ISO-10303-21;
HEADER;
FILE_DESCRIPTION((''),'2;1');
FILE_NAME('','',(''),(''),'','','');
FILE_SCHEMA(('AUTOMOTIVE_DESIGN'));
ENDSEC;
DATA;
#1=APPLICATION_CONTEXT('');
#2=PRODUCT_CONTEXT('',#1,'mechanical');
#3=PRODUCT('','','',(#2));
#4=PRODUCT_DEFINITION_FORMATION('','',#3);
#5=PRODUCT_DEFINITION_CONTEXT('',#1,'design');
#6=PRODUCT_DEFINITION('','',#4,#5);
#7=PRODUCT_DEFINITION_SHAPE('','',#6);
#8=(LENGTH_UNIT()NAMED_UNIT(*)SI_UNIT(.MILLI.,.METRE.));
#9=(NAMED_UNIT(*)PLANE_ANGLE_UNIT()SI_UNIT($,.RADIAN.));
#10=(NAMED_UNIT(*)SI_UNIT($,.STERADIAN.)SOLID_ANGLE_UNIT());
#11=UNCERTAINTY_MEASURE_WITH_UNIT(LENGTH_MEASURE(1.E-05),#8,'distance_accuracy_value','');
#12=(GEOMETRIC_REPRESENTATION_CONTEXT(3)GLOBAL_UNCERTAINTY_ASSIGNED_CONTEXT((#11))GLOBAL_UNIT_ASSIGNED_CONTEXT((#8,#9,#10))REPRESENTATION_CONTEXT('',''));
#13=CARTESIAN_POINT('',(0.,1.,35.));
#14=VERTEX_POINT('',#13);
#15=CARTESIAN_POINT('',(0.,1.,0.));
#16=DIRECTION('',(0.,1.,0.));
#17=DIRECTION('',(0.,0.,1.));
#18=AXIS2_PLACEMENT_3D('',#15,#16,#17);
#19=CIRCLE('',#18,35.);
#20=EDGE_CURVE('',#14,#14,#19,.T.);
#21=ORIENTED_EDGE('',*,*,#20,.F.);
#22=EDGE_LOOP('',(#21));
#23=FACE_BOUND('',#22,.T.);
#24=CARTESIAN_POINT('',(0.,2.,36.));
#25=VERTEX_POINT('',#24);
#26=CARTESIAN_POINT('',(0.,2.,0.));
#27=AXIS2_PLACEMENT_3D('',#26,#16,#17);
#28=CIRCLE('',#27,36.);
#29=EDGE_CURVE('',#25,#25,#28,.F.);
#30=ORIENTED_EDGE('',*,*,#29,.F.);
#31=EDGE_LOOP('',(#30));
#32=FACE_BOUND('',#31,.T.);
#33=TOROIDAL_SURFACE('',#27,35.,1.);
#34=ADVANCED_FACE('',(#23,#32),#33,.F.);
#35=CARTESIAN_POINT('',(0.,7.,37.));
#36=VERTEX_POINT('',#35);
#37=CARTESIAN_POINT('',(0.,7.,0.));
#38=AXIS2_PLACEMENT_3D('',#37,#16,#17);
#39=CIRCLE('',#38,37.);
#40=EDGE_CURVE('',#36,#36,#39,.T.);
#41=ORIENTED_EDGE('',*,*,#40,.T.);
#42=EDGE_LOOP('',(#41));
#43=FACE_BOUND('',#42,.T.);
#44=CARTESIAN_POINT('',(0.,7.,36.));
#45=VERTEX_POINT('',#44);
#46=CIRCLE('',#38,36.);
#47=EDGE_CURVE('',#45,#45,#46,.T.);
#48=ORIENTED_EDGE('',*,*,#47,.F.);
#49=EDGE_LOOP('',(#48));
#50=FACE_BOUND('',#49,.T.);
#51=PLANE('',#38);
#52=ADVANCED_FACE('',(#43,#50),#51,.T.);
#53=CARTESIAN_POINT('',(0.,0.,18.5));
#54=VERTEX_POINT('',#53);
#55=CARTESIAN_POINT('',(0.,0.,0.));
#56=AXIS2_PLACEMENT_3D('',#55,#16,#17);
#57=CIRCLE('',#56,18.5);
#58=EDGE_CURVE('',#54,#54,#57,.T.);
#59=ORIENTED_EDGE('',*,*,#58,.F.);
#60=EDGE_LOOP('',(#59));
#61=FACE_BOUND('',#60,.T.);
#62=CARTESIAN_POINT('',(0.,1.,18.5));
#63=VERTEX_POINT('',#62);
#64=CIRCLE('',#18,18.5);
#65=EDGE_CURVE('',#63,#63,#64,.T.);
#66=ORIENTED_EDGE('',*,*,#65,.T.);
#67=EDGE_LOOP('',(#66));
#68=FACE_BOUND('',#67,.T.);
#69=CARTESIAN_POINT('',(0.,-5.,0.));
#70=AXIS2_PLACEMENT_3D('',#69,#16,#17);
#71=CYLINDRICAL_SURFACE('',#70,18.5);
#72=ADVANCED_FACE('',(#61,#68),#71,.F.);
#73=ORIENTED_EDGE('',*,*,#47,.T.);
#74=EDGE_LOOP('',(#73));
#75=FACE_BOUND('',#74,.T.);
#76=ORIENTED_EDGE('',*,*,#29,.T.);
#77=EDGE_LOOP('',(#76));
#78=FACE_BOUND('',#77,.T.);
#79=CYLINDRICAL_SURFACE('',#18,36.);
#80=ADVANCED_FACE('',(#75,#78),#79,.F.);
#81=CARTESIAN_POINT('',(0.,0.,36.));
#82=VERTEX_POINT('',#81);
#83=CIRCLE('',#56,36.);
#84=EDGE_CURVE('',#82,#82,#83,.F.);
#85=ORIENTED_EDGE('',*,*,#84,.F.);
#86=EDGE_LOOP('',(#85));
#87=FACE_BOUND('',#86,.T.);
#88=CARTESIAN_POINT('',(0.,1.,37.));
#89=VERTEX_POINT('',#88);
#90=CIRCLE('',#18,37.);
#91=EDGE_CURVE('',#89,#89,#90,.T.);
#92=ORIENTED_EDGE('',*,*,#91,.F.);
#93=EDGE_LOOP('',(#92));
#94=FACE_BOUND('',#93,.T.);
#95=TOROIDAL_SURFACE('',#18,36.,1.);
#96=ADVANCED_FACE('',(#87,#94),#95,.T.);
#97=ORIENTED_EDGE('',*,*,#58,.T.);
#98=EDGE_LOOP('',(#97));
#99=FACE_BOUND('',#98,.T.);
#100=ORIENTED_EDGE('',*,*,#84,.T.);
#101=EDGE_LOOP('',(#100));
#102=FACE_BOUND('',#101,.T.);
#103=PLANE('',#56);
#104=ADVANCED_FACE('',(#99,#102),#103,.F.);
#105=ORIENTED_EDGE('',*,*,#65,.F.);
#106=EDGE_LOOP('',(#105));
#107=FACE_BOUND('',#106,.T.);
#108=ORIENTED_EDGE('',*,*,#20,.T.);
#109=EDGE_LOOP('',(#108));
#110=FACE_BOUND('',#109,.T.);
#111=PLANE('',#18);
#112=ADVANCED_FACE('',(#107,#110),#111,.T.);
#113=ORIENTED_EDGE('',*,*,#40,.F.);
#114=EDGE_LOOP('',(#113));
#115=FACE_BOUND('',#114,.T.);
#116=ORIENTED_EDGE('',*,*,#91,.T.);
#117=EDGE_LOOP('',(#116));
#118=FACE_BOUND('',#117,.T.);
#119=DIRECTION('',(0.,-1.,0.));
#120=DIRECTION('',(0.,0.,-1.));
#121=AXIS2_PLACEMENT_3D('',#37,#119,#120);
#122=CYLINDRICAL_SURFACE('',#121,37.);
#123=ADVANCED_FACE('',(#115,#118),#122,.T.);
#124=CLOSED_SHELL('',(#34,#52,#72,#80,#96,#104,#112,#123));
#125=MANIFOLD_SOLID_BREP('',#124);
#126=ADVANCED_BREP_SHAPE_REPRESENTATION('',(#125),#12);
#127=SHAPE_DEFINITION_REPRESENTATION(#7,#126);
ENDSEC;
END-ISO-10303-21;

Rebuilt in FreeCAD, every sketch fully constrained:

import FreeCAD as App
import Part
import Sketcher
from FreeCAD import Vector
Q = App.Units.Quantity


def edges_at(feature, points):
    """Names of the edges that pass closest to the given points."""
    edges = feature.Shape.Edges
    near = lambda p: min(range(len(edges)), key=lambda i: edges[i].distToShape(Part.Vertex(*p))[0])
    return sorted({f"Edge{near(p) + 1}" for p in points})

doc = App.newDocument("Part")
body = doc.addObject("PartDesign::Body", "Body")

# Sketch on XZ plane
sketch1 = doc.addObject("Sketcher::SketchObject", "Sketch")
body.addObject(sketch1)
sketch1.AttachmentSupport = (doc.XZ_Plane, [""])
sketch1.MapMode = "FlatFace"
sketch1.addGeometry(Part.Circle(Vector(0, 0, 0), Vector(0, 0, 1), 37), False)
sketch1.addConstraint([
    Sketcher.Constraint("Coincident", 0, 3, -1, 1),
    Sketcher.Constraint("Diameter", 0, Q("74 mm")),
])
pad1 = doc.addObject("PartDesign::Pad", "Pad")
body.addObject(pad1)
pad1.Profile = sketch1
pad1.Length = 7
pad1.Reversed = True

# Sketch on XZ plane
sketch2 = doc.addObject("Sketcher::SketchObject", "Sketch001")
body.addObject(sketch2)
sketch2.AttachmentSupport = (doc.XZ_Plane, [""])
sketch2.MapMode = "FlatFace"
sketch2.AttachmentOffset = App.Placement(Vector(0, 0, -7), App.Rotation())
sketch2.addGeometry(Part.Circle(Vector(0, 0, 0), Vector(0, 0, 1), 36), False)
sketch2.addConstraint([
    Sketcher.Constraint("Coincident", 0, 3, -1, 1),
    Sketcher.Constraint("Diameter", 0, Q("72 mm")),
])
pocket1 = doc.addObject("PartDesign::Pocket", "Pocket")
body.addObject(pocket1)
pocket1.Profile = sketch2
pocket1.Length = 6
pocket1.Reversed = True

# Sketch on XZ plane
sketch3 = doc.addObject("Sketcher::SketchObject", "Sketch002")
body.addObject(sketch3)
sketch3.AttachmentSupport = (doc.XZ_Plane, [""])
sketch3.MapMode = "FlatFace"
sketch3.AttachmentOffset = App.Placement(Vector(0, 0, -1), App.Rotation())
sketch3.addGeometry(Part.Circle(Vector(0, 0, 0), Vector(0, 0, 1), 18), False)
sketch3.addConstraint([
    Sketcher.Constraint("Coincident", 0, 3, -1, 1),
    Sketcher.Constraint("Diameter", 0, Q("37 mm")),
])
pocket2 = doc.addObject("PartDesign::Pocket", "Pocket001")
body.addObject(pocket2)
pocket2.Profile = sketch3
pocket2.Length = 6
pocket2.Reversed = True
doc.recompute()

fillet = doc.addObject("PartDesign::Fillet", "Fillet")
body.addObject(fillet)
fillet.Base = (pocket2, edges_at(pocket2, [(-37, 0, 0), (-36, 1, 0)]))
fillet.Radius = 1

doc.recompute()
